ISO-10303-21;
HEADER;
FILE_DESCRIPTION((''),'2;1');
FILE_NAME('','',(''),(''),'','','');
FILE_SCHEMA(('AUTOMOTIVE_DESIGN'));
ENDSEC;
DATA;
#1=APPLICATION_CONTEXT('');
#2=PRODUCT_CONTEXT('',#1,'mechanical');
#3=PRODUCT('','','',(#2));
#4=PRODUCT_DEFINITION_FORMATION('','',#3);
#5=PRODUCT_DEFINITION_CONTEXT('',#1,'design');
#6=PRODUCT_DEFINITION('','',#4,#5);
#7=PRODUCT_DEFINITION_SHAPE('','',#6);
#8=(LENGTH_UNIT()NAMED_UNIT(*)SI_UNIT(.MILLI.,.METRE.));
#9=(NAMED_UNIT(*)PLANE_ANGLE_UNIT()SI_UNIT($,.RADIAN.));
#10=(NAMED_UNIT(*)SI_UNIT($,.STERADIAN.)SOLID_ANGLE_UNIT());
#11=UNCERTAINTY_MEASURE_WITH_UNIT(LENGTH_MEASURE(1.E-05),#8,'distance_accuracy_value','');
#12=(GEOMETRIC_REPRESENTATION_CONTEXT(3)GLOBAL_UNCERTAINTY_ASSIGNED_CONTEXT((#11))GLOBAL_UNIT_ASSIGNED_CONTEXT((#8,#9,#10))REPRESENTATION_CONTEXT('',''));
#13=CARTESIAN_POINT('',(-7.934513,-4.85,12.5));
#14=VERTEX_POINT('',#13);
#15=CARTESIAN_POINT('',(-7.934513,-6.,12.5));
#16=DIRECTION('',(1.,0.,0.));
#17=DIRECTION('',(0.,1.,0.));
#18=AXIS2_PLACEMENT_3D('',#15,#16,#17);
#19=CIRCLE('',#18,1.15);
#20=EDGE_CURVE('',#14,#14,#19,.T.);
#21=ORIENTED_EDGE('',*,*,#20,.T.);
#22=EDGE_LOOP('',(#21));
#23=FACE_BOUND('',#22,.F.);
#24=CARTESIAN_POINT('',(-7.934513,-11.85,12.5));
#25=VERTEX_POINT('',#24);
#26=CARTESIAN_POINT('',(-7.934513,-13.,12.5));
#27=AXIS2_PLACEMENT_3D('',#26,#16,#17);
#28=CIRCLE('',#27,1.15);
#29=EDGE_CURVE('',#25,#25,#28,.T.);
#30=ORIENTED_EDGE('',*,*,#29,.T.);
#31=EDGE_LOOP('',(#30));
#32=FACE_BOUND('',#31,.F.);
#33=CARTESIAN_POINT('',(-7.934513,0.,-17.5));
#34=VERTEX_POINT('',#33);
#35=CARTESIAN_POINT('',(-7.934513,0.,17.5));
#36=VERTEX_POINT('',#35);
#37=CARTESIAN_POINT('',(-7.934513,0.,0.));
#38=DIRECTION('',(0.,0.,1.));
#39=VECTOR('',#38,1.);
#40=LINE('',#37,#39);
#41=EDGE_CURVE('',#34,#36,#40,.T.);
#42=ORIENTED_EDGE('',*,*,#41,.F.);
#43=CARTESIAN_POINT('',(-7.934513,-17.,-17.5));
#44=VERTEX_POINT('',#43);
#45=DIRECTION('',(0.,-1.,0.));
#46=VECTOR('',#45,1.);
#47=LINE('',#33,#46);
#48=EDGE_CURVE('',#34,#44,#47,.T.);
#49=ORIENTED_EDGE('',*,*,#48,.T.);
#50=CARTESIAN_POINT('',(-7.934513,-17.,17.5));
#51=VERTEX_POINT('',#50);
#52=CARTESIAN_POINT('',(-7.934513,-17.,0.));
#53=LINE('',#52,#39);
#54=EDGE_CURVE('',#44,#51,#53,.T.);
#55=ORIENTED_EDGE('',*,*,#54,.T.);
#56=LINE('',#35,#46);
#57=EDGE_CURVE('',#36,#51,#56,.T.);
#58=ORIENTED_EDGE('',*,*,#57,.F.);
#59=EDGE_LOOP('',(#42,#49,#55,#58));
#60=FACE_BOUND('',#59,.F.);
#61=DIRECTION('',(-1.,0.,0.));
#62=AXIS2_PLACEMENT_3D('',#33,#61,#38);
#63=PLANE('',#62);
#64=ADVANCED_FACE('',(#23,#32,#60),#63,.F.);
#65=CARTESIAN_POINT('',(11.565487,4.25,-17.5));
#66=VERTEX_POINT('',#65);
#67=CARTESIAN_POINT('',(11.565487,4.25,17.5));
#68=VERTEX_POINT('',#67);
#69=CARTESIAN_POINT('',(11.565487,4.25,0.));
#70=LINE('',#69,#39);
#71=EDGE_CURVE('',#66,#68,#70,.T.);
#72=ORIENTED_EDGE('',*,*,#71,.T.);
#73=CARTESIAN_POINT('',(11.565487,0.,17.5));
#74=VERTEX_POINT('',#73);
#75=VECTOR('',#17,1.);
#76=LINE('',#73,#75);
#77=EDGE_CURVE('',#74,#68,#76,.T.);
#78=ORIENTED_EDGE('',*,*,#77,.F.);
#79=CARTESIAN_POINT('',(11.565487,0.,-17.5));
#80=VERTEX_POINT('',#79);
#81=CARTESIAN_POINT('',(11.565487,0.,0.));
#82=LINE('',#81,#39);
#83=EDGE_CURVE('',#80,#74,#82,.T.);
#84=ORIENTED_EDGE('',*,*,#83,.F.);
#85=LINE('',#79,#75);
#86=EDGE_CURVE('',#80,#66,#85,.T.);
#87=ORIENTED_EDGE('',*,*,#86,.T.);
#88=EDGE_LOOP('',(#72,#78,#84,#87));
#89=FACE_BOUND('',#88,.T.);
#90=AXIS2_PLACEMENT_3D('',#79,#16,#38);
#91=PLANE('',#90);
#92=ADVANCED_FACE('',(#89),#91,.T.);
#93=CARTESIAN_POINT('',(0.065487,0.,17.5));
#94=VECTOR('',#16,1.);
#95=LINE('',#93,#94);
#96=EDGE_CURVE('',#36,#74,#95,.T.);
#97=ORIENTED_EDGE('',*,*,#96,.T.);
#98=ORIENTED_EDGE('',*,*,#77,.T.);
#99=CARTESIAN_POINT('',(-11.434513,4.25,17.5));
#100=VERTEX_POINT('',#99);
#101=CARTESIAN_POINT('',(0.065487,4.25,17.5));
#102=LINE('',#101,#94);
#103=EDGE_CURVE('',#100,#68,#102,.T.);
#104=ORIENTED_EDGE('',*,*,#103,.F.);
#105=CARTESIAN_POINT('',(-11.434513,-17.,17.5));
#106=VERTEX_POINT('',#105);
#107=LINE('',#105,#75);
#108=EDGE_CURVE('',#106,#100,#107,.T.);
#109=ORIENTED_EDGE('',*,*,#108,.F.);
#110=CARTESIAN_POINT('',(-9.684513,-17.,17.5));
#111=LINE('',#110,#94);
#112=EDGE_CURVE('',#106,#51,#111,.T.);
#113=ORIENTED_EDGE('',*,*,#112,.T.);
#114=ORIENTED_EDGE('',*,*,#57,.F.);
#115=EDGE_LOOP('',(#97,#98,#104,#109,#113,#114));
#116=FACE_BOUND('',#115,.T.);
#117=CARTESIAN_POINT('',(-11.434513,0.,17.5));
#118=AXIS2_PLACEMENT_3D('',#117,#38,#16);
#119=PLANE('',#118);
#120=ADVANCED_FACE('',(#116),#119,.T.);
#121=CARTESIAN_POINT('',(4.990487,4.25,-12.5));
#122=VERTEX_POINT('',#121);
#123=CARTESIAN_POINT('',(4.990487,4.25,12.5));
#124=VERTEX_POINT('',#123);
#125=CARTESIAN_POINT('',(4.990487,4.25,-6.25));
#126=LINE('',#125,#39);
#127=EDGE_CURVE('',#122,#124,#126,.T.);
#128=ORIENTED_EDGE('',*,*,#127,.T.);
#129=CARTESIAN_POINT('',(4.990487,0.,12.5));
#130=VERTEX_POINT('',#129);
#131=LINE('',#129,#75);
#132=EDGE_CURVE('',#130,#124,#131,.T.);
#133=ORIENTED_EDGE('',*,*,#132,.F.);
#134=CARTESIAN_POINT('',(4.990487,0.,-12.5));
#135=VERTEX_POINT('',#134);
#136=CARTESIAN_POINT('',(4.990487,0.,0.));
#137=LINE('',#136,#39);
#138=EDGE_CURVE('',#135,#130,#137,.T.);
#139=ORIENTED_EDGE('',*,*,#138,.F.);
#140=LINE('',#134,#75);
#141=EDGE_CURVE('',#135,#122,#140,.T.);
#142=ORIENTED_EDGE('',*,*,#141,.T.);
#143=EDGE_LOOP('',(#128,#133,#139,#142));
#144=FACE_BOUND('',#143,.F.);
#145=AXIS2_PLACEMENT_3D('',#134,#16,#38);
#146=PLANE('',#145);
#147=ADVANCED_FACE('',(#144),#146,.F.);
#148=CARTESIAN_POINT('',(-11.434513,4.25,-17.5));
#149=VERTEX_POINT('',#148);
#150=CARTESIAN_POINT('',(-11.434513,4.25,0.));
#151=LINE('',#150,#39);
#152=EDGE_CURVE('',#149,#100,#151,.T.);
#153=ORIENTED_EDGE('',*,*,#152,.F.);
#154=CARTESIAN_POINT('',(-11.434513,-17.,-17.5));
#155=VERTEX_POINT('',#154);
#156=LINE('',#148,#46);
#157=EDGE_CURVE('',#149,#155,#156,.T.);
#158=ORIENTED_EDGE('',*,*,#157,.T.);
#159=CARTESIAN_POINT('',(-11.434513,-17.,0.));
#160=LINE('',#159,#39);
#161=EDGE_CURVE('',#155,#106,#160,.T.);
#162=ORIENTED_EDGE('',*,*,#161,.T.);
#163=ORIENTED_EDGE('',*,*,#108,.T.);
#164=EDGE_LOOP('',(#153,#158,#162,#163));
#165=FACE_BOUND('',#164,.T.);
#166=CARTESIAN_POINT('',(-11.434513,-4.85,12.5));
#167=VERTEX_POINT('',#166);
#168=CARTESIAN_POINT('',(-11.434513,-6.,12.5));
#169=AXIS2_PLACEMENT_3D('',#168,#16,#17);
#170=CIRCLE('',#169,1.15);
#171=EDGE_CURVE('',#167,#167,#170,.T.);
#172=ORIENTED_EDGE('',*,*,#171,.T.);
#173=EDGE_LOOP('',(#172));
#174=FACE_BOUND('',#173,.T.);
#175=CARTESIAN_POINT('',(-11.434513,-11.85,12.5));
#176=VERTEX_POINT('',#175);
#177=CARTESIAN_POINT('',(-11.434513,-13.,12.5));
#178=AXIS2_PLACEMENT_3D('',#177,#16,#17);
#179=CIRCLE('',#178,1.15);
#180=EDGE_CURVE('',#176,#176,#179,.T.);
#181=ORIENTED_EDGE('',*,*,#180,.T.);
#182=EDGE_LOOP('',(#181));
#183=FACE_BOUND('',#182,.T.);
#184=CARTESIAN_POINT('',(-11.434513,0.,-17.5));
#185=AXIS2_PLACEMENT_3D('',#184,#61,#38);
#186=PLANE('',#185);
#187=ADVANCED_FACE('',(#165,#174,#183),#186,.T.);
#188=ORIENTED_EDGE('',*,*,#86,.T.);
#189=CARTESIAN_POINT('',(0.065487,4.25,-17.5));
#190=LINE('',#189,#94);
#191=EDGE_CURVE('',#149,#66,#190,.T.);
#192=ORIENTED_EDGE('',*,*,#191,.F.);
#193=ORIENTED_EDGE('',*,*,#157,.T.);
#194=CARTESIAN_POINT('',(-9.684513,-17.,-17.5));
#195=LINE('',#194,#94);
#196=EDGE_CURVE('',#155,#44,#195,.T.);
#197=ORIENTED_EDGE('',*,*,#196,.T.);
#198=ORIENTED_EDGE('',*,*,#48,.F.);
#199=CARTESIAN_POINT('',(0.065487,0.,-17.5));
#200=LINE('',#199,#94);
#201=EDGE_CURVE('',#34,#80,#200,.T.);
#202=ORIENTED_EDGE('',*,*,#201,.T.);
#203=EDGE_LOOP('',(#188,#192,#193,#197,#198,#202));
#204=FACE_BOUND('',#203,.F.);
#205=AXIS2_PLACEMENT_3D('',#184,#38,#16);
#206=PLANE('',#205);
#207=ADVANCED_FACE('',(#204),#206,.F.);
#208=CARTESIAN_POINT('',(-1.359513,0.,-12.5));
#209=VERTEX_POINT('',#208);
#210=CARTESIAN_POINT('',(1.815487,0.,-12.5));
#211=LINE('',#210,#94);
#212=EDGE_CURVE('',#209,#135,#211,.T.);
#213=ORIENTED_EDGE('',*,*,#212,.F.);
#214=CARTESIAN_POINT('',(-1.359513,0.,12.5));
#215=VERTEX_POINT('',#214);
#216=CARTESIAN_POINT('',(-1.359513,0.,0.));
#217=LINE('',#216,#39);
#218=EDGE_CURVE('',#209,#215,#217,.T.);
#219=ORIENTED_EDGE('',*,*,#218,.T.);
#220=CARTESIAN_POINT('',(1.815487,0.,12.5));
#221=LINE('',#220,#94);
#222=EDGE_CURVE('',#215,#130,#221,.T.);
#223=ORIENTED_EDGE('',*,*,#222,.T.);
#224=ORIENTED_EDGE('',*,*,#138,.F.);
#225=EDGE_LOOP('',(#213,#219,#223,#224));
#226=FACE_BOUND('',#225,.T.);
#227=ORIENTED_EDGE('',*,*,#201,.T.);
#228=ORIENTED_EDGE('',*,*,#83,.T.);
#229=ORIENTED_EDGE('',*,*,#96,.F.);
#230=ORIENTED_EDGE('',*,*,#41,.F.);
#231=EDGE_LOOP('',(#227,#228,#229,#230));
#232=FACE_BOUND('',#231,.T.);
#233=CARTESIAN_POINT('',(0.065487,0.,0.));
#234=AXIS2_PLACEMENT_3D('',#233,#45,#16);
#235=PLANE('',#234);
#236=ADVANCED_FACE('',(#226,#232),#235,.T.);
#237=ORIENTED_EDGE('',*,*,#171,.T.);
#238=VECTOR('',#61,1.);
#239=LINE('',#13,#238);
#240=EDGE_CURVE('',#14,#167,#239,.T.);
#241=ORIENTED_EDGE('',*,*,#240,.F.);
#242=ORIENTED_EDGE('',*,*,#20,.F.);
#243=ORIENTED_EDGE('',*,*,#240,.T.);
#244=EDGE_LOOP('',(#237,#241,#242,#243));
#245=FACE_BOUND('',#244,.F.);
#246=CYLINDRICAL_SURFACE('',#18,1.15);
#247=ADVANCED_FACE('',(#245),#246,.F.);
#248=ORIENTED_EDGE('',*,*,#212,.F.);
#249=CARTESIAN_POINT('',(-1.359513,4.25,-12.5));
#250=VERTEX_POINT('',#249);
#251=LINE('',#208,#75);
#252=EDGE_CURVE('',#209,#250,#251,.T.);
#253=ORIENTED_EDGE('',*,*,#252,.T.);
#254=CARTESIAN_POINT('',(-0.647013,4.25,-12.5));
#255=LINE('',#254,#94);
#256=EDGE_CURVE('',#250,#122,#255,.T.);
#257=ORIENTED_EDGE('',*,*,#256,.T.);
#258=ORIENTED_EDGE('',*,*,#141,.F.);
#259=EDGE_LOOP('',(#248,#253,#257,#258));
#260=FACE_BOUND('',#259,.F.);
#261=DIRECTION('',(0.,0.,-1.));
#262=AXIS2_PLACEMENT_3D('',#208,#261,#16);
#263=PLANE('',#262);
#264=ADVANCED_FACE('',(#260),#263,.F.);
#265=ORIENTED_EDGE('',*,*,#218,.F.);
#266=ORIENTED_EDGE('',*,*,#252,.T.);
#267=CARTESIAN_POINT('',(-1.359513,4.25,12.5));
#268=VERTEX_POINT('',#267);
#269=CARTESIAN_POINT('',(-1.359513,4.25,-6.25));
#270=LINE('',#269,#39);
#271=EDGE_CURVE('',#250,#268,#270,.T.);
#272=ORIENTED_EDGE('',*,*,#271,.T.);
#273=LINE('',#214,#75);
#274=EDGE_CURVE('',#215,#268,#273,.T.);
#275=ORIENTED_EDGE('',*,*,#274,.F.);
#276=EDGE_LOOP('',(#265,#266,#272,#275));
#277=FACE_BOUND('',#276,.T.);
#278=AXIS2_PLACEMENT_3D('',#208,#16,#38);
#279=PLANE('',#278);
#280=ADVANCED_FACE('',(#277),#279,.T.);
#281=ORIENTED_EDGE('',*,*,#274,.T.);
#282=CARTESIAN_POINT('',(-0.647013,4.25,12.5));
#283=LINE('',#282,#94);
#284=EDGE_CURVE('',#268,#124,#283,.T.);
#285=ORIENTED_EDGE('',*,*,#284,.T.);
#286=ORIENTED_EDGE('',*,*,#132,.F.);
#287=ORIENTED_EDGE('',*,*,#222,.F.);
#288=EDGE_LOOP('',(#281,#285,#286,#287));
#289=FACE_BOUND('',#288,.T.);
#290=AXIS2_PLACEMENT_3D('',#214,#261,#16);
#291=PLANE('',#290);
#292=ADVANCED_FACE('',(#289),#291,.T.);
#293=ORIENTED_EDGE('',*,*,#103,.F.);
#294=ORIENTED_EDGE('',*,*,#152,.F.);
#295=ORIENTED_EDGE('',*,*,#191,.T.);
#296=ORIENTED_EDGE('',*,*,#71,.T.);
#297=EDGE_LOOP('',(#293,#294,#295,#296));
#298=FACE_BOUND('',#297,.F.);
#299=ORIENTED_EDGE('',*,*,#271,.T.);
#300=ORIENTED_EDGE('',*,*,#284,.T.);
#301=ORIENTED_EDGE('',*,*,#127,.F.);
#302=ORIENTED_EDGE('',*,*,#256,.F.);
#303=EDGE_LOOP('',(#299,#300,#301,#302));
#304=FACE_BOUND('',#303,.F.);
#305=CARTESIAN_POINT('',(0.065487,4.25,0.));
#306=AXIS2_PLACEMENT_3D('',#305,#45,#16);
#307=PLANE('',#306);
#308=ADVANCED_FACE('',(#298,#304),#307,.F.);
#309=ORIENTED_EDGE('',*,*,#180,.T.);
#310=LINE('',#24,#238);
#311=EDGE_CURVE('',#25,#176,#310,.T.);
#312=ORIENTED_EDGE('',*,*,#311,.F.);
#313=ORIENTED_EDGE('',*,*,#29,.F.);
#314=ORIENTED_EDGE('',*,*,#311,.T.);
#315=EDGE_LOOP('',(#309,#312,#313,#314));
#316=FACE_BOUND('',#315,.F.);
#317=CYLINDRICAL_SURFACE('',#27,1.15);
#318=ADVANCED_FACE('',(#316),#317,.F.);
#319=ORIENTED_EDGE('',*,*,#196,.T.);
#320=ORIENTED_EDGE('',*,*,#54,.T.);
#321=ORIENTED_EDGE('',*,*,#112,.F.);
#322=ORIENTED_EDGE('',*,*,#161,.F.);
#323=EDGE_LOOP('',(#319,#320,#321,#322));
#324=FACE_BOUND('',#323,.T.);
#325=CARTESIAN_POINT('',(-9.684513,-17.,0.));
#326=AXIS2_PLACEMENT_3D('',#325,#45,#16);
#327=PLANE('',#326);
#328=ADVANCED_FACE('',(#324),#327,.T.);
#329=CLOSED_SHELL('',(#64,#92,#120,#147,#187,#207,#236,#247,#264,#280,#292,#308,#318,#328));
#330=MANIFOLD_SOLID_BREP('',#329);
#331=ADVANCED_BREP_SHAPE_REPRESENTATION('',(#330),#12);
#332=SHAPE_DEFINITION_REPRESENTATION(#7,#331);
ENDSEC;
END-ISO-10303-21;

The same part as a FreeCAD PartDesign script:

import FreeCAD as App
import Part
import Sketcher
from FreeCAD import Vector

doc = App.newDocument("Part")
body = doc.addObject("PartDesign::Body", "Body")

sketch1 = body.newObject("Sketcher::SketchObject", "Sketch")
sketch1.AttachmentSupport = (doc.getObject("XZ_Plane"), [""])
sketch1.MapMode = "FlatFace"
sketch1.addGeometry([
    Part.LineSegment(Vector(-11, 18, 0), Vector(-11, -18, 0)),
    Part.LineSegment(Vector(-11, -18, 0), Vector(12, -18, 0)),
    Part.LineSegment(Vector(12, -18, 0), Vector(12, 18, 0)),
    Part.LineSegment(Vector(12, 18, 0), Vector(-11, 18, 0)),
], False)
sketch1.addConstraint([
    Sketcher.Constraint("Coincident", 0, 2, 1, 1),
    Sketcher.Constraint("Coincident", 1, 2, 2, 1),
    Sketcher.Constraint("Coincident", 2, 2, 3, 1),
    Sketcher.Constraint("Coincident", 3, 2, 0, 1),
    Sketcher.Constraint("Vertical", 0),
    Sketcher.Constraint("Horizontal", 1),
    Sketcher.Constraint("Vertical", 2),
    Sketcher.Constraint("Horizontal", 3),
    Sketcher.Constraint("DistanceX", 1, 1, 1, 2, 23.0),
    Sketcher.Constraint("DistanceY", 0, 2, 0, 1, 35.0),
    Sketcher.Constraint("DistanceY", 0, 2, -1, 1, 17.5),
    Sketcher.Constraint("DistanceX", 0, 2, -1, 1, 11.434513),
])
pad1 = body.newObject("PartDesign::Pad", "Pad")
pad1.Profile = sketch1
pad1.Length = 4.25
pad1.Reversed = True

sketch2 = body.newObject("Sketcher::SketchObject", "Sketch001")
sketch2.AttachmentSupport = (doc.getObject("XZ_Plane"), [""])
sketch2.MapMode = "FlatFace"
sketch2.addGeometry([
    Part.LineSegment(Vector(-11.4, 17.5, 0), Vector(-11.4, -17.5, 0)),
    Part.LineSegment(Vector(-11.4, -17.5, 0), Vector(-7.9, -17.5, 0)),
    Part.LineSegment(Vector(-7.9, -17.5, 0), Vector(-7.9, 17.5, 0)),
    Part.LineSegment(Vector(-7.9, 17.5, 0), Vector(-11.4, 17.5, 0)),
], False)
sketch2.addConstraint([
    Sketcher.Constraint("Coincident", 0, 2, 1, 1),
    Sketcher.Constraint("Coincident", 1, 2, 2, 1),
    Sketcher.Constraint("Coincident", 2, 2, 3, 1),
    Sketcher.Constraint("Coincident", 3, 2, 0, 1),
    Sketcher.Constraint("Vertical", 0),
    Sketcher.Constraint("Horizontal", 1),
    Sketcher.Constraint("Vertical", 2),
    Sketcher.Constraint("Horizontal", 3),
    Sketcher.Constraint("DistanceY", 0, 2, 0, 1, 35.0),
    Sketcher.Constraint("DistanceX", 1, 1, 1, 2, 3.5),
    Sketcher.Constraint("DistanceY", 0, 2, -1, 1, 17.5),
    Sketcher.Constraint("DistanceX", 0, 2, -1, 1, 11.434513),
])
pad2 = body.newObject("PartDesign::Pad", "Pad001")
pad2.Profile = sketch2
pad2.Length = 17

sketch3 = body.newObject("Sketcher::SketchObject", "Sketch002")
sketch3.AttachmentSupport = (doc.getObject("XZ_Plane"), [""])
sketch3.MapMode = "FlatFace"
sketch3.addGeometry([
    Part.LineSegment(Vector(-1, 12, 0), Vector(-1, -12, 0)),
    Part.LineSegment(Vector(-1, -12, 0), Vector(5, -12, 0)),
    Part.LineSegment(Vector(5, -12, 0), Vector(5, 12, 0)),
    Part.LineSegment(Vector(5, 12, 0), Vector(-1, 12, 0)),
], False)
sketch3.addConstraint([
    Sketcher.Constraint("Coincident", 0, 2, 1, 1),
    Sketcher.Constraint("Coincident", 1, 2, 2, 1),
    Sketcher.Constraint("Coincident", 2, 2, 3, 1),
    Sketcher.Constraint("Coincident", 3, 2, 0, 1),
    Sketcher.Constraint("Vertical", 0),
    Sketcher.Constraint("Horizontal", 1),
    Sketcher.Constraint("Vertical", 2),
    Sketcher.Constraint("Horizontal", 3),
    Sketcher.Constraint("DistanceY", 0, 2, 0, 1, 25.0),
    Sketcher.Constraint("DistanceX", 1, 1, 1, 2, 6.35),
    Sketcher.Constraint("DistanceY", 0, 2, -1, 1, 12.5),
    Sketcher.Constraint("DistanceX", 0, 2, -1, 1, 1.359513),
])
pocket1 = body.newObject("PartDesign::Pocket", "Pocket")
pocket1.Profile = sketch3
pocket1.Type = "ThroughAll"

sketch4 = body.newObject("Sketcher::SketchObject", "Sketch003")
sketch4.AttachmentSupport = (doc.getObject("YZ_Plane"), [""])
sketch4.MapMode = "FlatFace"
sketch4.AttachmentOffset = App.Placement(Vector(0, 0, -7.934513), App.Rotation())
sketch4.addGeometry([
    Part.Circle(Vector(-13, 12.5, 0), Vector(0, 0, 1), 1.1),
    Part.Circle(Vector(-6, 12.5, 0), Vector(0, 0, 1), 1.1),
], False)
sketch4.addConstraint([
    Sketcher.Constraint("Equal", 0, 1),
    Sketcher.Constraint("Horizontal", 0, 3, 1, 3),
    Sketcher.Constraint("Diameter", 0, 2.3),
    Sketcher.Constraint("DistanceX", 0, 3, -1, 1, 13.0),
    Sketcher.Constraint("DistanceX", 1, 3, -1, 1, 6.0),
    Sketcher.Constraint("DistanceY", -1, 1, 0, 3, 12.5),
])
pocket2 = body.newObject("PartDesign::Pocket", "Pocket001")
pocket2.Profile = sketch4
pocket2.Type = "ThroughAll"

doc.recompute()
